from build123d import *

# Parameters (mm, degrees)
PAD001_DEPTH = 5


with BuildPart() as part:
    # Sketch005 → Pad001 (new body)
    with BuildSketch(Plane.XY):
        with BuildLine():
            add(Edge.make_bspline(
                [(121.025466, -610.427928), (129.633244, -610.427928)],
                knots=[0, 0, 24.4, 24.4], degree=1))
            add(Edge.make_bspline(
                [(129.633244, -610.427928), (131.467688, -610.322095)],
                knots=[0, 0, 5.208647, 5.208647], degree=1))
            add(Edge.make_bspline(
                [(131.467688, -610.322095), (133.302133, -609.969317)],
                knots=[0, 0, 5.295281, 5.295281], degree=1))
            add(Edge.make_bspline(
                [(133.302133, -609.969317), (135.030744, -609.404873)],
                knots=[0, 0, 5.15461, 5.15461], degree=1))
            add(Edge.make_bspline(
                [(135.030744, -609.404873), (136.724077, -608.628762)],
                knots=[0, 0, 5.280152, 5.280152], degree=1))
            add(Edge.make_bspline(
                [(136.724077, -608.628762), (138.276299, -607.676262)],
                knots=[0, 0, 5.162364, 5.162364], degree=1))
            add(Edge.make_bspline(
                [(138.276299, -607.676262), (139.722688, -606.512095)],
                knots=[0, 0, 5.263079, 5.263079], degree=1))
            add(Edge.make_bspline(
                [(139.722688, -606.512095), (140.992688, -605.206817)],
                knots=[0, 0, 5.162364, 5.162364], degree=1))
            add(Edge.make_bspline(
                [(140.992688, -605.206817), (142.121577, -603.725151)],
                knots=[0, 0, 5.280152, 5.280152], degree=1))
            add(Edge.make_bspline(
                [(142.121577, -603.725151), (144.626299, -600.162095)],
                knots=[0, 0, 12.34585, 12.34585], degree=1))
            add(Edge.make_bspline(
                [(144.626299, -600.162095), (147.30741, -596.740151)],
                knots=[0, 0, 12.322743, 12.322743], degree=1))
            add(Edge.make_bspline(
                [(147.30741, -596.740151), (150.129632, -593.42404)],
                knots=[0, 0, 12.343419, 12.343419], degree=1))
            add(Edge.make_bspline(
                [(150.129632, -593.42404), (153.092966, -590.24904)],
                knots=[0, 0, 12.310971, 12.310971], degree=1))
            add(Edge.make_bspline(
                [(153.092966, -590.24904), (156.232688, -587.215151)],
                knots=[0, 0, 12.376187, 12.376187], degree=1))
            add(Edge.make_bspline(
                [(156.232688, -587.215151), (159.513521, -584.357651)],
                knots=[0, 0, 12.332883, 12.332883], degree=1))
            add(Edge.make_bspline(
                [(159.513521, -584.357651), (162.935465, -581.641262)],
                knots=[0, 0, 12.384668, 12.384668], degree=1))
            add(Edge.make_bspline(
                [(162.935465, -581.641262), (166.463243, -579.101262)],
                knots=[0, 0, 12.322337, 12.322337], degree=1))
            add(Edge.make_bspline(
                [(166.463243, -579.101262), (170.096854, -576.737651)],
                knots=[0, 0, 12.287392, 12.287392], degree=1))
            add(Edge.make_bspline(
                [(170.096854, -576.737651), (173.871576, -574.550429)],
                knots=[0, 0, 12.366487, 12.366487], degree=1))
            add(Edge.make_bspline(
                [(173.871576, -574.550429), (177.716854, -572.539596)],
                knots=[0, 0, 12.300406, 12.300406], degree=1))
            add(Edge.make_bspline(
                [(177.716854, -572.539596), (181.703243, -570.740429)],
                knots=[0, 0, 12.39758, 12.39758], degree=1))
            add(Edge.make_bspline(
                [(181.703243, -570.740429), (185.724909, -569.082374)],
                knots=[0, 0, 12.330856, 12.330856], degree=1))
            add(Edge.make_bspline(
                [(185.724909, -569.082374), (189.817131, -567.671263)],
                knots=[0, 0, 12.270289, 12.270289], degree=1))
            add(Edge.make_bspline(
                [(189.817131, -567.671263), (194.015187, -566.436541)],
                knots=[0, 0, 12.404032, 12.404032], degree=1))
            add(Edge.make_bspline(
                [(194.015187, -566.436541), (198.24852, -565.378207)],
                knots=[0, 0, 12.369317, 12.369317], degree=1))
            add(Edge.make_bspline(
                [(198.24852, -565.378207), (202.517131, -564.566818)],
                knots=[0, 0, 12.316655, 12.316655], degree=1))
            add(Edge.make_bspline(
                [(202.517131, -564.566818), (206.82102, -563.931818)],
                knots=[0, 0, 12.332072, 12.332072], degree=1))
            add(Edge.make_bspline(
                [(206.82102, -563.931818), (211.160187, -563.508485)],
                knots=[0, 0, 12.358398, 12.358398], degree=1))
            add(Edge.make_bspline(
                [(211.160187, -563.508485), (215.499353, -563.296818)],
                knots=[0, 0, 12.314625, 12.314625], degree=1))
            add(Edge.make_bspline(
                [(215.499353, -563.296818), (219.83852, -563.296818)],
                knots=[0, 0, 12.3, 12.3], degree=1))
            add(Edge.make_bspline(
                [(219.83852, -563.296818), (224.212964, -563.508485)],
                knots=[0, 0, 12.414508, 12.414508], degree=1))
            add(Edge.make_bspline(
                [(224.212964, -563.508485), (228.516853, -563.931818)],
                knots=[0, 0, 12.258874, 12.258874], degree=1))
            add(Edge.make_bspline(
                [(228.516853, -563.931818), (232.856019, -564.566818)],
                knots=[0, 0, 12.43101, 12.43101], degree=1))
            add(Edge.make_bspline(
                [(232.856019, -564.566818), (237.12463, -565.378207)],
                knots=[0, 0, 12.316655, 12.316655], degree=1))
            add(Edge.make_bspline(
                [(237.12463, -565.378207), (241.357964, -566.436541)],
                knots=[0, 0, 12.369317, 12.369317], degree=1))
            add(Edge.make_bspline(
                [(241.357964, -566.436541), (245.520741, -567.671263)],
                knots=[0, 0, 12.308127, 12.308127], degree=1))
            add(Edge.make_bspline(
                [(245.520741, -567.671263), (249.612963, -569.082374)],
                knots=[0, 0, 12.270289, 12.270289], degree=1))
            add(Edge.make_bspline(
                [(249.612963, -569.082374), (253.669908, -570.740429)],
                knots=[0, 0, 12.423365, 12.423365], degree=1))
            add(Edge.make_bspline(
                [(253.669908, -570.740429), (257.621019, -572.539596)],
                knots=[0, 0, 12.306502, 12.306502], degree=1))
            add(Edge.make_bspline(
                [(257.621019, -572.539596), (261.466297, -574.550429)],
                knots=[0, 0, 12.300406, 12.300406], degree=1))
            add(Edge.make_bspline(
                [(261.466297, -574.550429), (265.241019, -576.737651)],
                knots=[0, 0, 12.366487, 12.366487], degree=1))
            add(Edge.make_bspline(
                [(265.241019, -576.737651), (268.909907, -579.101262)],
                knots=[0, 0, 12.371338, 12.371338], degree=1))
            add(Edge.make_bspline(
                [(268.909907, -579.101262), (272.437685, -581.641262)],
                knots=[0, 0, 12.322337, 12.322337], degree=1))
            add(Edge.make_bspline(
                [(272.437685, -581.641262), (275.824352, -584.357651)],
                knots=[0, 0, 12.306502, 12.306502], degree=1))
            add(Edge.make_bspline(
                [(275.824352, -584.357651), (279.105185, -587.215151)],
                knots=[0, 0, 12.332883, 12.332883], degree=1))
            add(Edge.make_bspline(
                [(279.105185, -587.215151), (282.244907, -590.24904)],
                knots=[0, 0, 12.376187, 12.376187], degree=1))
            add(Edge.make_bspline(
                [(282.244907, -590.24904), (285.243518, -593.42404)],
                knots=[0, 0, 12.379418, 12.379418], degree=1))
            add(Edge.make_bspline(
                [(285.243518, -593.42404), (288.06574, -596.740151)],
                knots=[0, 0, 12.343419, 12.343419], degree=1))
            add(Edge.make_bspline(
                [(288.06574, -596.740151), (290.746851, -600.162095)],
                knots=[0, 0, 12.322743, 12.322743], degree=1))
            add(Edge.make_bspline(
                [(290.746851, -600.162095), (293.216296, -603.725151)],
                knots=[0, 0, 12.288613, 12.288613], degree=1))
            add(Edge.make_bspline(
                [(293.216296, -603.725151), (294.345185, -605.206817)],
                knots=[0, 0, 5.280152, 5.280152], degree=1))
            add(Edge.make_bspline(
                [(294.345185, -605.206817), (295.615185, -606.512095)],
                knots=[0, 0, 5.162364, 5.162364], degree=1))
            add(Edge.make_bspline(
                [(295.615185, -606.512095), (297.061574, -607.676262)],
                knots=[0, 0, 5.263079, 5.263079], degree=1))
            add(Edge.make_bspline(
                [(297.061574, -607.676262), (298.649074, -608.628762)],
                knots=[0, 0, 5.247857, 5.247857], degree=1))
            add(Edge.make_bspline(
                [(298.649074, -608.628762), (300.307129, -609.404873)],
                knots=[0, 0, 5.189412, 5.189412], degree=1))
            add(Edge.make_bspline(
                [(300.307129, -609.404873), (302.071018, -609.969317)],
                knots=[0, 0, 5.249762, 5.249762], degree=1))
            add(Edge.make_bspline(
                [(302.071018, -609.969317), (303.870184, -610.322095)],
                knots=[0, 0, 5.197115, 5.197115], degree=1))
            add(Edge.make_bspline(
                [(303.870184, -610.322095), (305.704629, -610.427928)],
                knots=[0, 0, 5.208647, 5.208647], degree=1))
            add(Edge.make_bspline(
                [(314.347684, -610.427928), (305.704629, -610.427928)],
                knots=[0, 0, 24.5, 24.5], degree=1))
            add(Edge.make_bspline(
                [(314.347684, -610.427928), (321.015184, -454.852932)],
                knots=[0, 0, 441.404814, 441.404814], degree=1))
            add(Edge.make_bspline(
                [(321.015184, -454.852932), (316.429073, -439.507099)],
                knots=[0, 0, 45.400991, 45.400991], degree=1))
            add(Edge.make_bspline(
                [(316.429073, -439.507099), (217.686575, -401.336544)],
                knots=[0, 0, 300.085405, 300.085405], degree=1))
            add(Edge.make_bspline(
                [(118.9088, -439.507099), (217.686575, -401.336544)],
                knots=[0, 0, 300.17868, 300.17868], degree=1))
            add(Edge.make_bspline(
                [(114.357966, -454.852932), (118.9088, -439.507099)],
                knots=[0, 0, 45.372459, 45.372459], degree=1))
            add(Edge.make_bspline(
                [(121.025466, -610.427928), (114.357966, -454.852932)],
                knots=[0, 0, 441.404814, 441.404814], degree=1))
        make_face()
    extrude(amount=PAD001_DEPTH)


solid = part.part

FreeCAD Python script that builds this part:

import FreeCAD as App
import Part
import Sketcher

doc = App.newDocument("Part")
body = doc.addObject("PartDesign::Body", "Body")

sketch1 = body.newObject("Sketcher::SketchObject", "Sketch")
sketch1.AttachmentSupport = (doc.getObject("XY_Plane"), [""])
sketch1.MapMode = "FlatFace"
sketch1.addGeometry([
    Part.BSplineCurve([App.Vector(121.025466, -610.427928, 0), App.Vector(129.633244, -610.427928, 0)], [2, 2], [0, 24.4], False, 1, [1, 1], False),
    Part.BSplineCurve([App.Vector(129.633244, -610.427928, 0), App.Vector(131.467688, -610.322095, 0)], [2, 2], [0, 5.208647], False, 1, [1, 1], False),
    Part.BSplineCurve([App.Vector(131.467688, -610.322095, 0), App.Vector(133.302133, -609.969317, 0)], [2, 2], [0, 5.295281], False, 1, [1, 1], False),
    Part.BSplineCurve([App.Vector(133.302133, -609.969317, 0), App.Vector(135.030744, -609.404873, 0)], [2, 2], [0, 5.15461], False, 1, [1, 1], False),
    Part.BSplineCurve([App.Vector(135.030744, -609.404873, 0), App.Vector(136.724077, -608.628762, 0)], [2, 2], [0, 5.280152], False, 1, [1, 1], False),
    Part.BSplineCurve([App.Vector(136.724077, -608.628762, 0), App.Vector(138.276299, -607.676262, 0)], [2, 2], [0, 5.162364], False, 1, [1, 1], False),
    Part.BSplineCurve([App.Vector(138.276299, -607.676262, 0), App.Vector(139.722688, -606.512095, 0)], [2, 2], [0, 5.263079], False, 1, [1, 1], False),
    Part.BSplineCurve([App.Vector(139.722688, -606.512095, 0), App.Vector(140.992688, -605.206817, 0)], [2, 2], [0, 5.162364], False, 1, [1, 1], False),
    Part.BSplineCurve([App.Vector(140.992688, -605.206817, 0), App.Vector(142.121577, -603.725151, 0)], [2, 2], [0, 5.280152], False, 1, [1, 1], False),
    Part.BSplineCurve([App.Vector(142.121577, -603.725151, 0), App.Vector(144.626299, -600.162095, 0)], [2, 2], [0, 12.34585], False, 1, [1, 1], False),
    Part.BSplineCurve([App.Vector(144.626299, -600.162095, 0), App.Vector(147.30741, -596.740151, 0)], [2, 2], [0, 12.322743], False, 1, [1, 1], False),
    Part.BSplineCurve([App.Vector(147.30741, -596.740151, 0), App.Vector(150.129632, -593.42404, 0)], [2, 2], [0, 12.343419], False, 1, [1, 1], False),
    Part.BSplineCurve([App.Vector(150.129632, -593.42404, 0), App.Vector(153.092966, -590.24904, 0)], [2, 2], [0, 12.310971], False, 1, [1, 1], False),
    Part.BSplineCurve([App.Vector(153.092966, -590.24904, 0), App.Vector(156.232688, -587.215151, 0)], [2, 2], [0, 12.376187], False, 1, [1, 1], False),
    Part.BSplineCurve([App.Vector(156.232688, -587.215151, 0), App.Vector(159.513521, -584.357651, 0)], [2, 2], [0, 12.332883], False, 1, [1, 1], False),
    Part.BSplineCurve([App.Vector(159.513521, -584.357651, 0), App.Vector(162.935465, -581.641262, 0)], [2, 2], [0, 12.384668], False, 1, [1, 1], False),
    Part.BSplineCurve([App.Vector(162.935465, -581.641262, 0), App.Vector(166.463243, -579.101262, 0)], [2, 2], [0, 12.322337], False, 1, [1, 1], False),
    Part.BSplineCurve([App.Vector(166.463243, -579.101262, 0), App.Vector(170.096854, -576.737651, 0)], [2, 2], [0, 12.287392], False, 1, [1, 1], False),
    Part.BSplineCurve([App.Vector(170.096854, -576.737651, 0), App.Vector(173.871576, -574.550429, 0)], [2, 2], [0, 12.366487], False, 1, [1, 1], False),
    Part.BSplineCurve([App.Vector(173.871576, -574.550429, 0), App.Vector(177.716854, -572.539596, 0)], [2, 2], [0, 12.300406], False, 1, [1, 1], False),
    Part.BSplineCurve([App.Vector(177.716854, -572.539596, 0), App.Vector(181.703243, -570.740429, 0)], [2, 2], [0, 12.39758], False, 1, [1, 1], False),
    Part.BSplineCurve([App.Vector(181.703243, -570.740429, 0), App.Vector(185.724909, -569.082374, 0)], [2, 2], [0, 12.330856], False, 1, [1, 1], False),
    Part.BSplineCurve([App.Vector(185.724909, -569.082374, 0), App.Vector(189.817131, -567.671263, 0)], [2, 2], [0, 12.270289], False, 1, [1, 1], False),
    Part.BSplineCurve([App.Vector(189.817131, -567.671263, 0), App.Vector(194.015187, -566.436541, 0)], [2, 2], [0, 12.404032], False, 1, [1, 1], False),
    Part.BSplineCurve([App.Vector(194.015187, -566.436541, 0), App.Vector(198.24852, -565.378207, 0)], [2, 2], [0, 12.369317], False, 1, [1, 1], False),
    Part.BSplineCurve([App.Vector(198.24852, -565.378207, 0), App.Vector(202.517131, -564.566818, 0)], [2, 2], [0, 12.316655], False, 1, [1, 1], False),
    Part.BSplineCurve([App.Vector(202.517131, -564.566818, 0), App.Vector(206.82102, -563.931818, 0)], [2, 2], [0, 12.332072], False, 1, [1, 1], False),
    Part.BSplineCurve([App.Vector(206.82102, -563.931818, 0), App.Vector(211.160187, -563.508485, 0)], [2, 2], [0, 12.358398], False, 1, [1, 1], False),
    Part.BSplineCurve([App.Vector(211.160187, -563.508485, 0), App.Vector(215.499353, -563.296818, 0)], [2, 2], [0, 12.314625], False, 1, [1, 1], False),
    Part.BSplineCurve([App.Vector(215.499353, -563.296818, 0), App.Vector(219.83852, -563.296818, 0)], [2, 2], [0, 12.3], False, 1, [1, 1], False),
    Part.BSplineCurve([App.Vector(219.83852, -563.296818, 0), App.Vector(224.212964, -563.508485, 0)], [2, 2], [0, 12.414508], False, 1, [1, 1], False),
    Part.BSplineCurve([App.Vector(224.212964, -563.508485, 0), App.Vector(228.516853, -563.931818, 0)], [2, 2], [0, 12.258874], False, 1, [1, 1], False),
    Part.BSplineCurve([App.Vector(228.516853, -563.931818, 0), App.Vector(232.856019, -564.566818, 0)], [2, 2], [0, 12.43101], False, 1, [1, 1], False),
    Part.BSplineCurve([App.Vector(232.856019, -564.566818, 0), App.Vector(237.12463, -565.378207, 0)], [2, 2], [0, 12.316655], False, 1, [1, 1], False),
    Part.BSplineCurve([App.Vector(237.12463, -565.378207, 0), App.Vector(241.357964, -566.436541, 0)], [2, 2], [0, 12.369317], False, 1, [1, 1], False),
    Part.BSplineCurve([App.Vector(241.357964, -566.436541, 0), App.Vector(245.520741, -567.671263, 0)], [2, 2], [0, 12.308127], False, 1, [1, 1], False),
    Part.BSplineCurve([App.Vector(245.520741, -567.671263, 0), App.Vector(249.612963, -569.082374, 0)], [2, 2], [0, 12.270289], False, 1, [1, 1], False),
    Part.BSplineCurve([App.Vector(249.612963, -569.082374, 0), App.Vector(253.669908, -570.740429, 0)], [2, 2], [0, 12.423365], False, 1, [1, 1], False),
    Part.BSplineCurve([App.Vector(253.669908, -570.740429, 0), App.Vector(257.621019, -572.539596, 0)], [2, 2], [0, 12.306502], False, 1, [1, 1], False),
    Part.BSplineCurve([App.Vector(257.621019, -572.539596, 0), App.Vector(261.466297, -574.550429, 0)], [2, 2], [0, 12.300406], False, 1, [1, 1], False),
    Part.BSplineCurve([App.Vector(261.466297, -574.550429, 0), App.Vector(265.241019, -576.737651, 0)], [2, 2], [0, 12.366487], False, 1, [1, 1], False),
    Part.BSplineCurve([App.Vector(265.241019, -576.737651, 0), App.Vector(268.909907, -579.101262, 0)], [2, 2], [0, 12.371338], False, 1, [1, 1], False),
    Part.BSplineCurve([App.Vector(268.909907, -579.101262, 0), App.Vector(272.437685, -581.641262, 0)], [2, 2], [0, 12.322337], False, 1, [1, 1], False),
    Part.BSplineCurve([App.Vector(272.437685, -581.641262, 0), App.Vector(275.824352, -584.357651, 0)], [2, 2], [0, 12.306502], False, 1, [1, 1], False),
    Part.BSplineCurve([App.Vector(275.824352, -584.357651, 0), App.Vector(279.105185, -587.215151, 0)], [2, 2], [0, 12.332883], False, 1, [1, 1], False),
    Part.BSplineCurve([App.Vector(279.105185, -587.215151, 0), App.Vector(282.244907, -590.24904, 0)], [2, 2], [0, 12.376187], False, 1, [1, 1], False),
    Part.BSplineCurve([App.Vector(282.244907, -590.24904, 0), App.Vector(285.243518, -593.42404, 0)], [2, 2], [0, 12.379418], False, 1, [1, 1], False),
    Part.BSplineCurve([App.Vector(285.243518, -593.42404, 0), App.Vector(288.06574, -596.740151, 0)], [2, 2], [0, 12.343419], False, 1, [1, 1], False),
    Part.BSplineCurve([App.Vector(288.06574, -596.740151, 0), App.Vector(290.746851, -600.162095, 0)], [2, 2], [0, 12.322743], False, 1, [1, 1], False),
    Part.BSplineCurve([App.Vector(290.746851, -600.162095, 0), App.Vector(293.216296, -603.725151, 0)], [2, 2], [0, 12.288613], False, 1, [1, 1], False),
    Part.BSplineCurve([App.Vector(293.216296, -603.725151, 0), App.Vector(294.345185, -605.206817, 0)], [2, 2], [0, 5.280152], False, 1, [1, 1], False),
    Part.BSplineCurve([App.Vector(294.345185, -605.206817, 0), App.Vector(295.615185, -606.512095, 0)], [2, 2], [0, 5.162364], False, 1, [1, 1], False),
    Part.BSplineCurve([App.Vector(295.615185, -606.512095, 0), App.Vector(297.061574, -607.676262, 0)], [2, 2], [0, 5.263079], False, 1, [1, 1], False),
    Part.BSplineCurve([App.Vector(297.061574, -607.676262, 0), App.Vector(298.649074, -608.628762, 0)], [2, 2], [0, 5.247857], False, 1, [1, 1], False),
    Part.BSplineCurve([App.Vector(298.649074, -608.628762, 0), App.Vector(300.307129, -609.404873, 0)], [2, 2], [0, 5.189412], False, 1, [1, 1], False),
    Part.BSplineCurve([App.Vector(300.307129, -609.404873, 0), App.Vector(302.071018, -609.969317, 0)], [2, 2], [0, 5.249762], False, 1, [1, 1], False),
    Part.BSplineCurve([App.Vector(302.071018, -609.969317, 0), App.Vector(303.870184, -610.322095, 0)], [2, 2], [0, 5.197115], False, 1, [1, 1], False),
    Part.BSplineCurve([App.Vector(303.870184, -610.322095, 0), App.Vector(305.704629, -610.427928, 0)], [2, 2], [0, 5.208647], False, 1, [1, 1], False),
    Part.BSplineCurve([App.Vector(314.347684, -610.427928, 0), App.Vector(305.704629, -610.427928, 0)], [2, 2], [0, 24.5], False, 1, [1, 1], False),
    Part.BSplineCurve([App.Vector(314.347684, -610.427928, 0), App.Vector(321.015184, -454.852932, 0)], [2, 2], [0, 441.404814], False, 1, [1, 1], False),
    Part.BSplineCurve([App.Vector(321.015184, -454.852932, 0), App.Vector(316.429073, -439.507099, 0)], [2, 2], [0, 45.400991], False, 1, [1, 1], False),
    Part.BSplineCurve([App.Vector(316.429073, -439.507099, 0), App.Vector(217.686575, -401.336544, 0)], [2, 2], [0, 300.085405], False, 1, [1, 1], False),
    Part.BSplineCurve([App.Vector(118.9088, -439.507099, 0), App.Vector(217.686575, -401.336544, 0)], [2, 2], [0, 300.17868], False, 1, [1, 1], False),
    Part.BSplineCurve([App.Vector(114.357966, -454.852932, 0), App.Vector(118.9088, -439.507099, 0)], [2, 2], [0, 45.372459], False, 1, [1, 1], False),
    Part.BSplineCurve([App.Vector(121.025466, -610.427928, 0), App.Vector(114.357966, -454.852932, 0)], [2, 2], [0, 441.404814], False, 1, [1, 1], False),
], False)
sketch1.addConstraint([
    Sketcher.Constraint("Block", 0),
    Sketcher.Constraint("Block", 1),
    Sketcher.Constraint("Block", 2),
    Sketcher.Constraint("Block", 3),
    Sketcher.Constraint("Block", 4),
    Sketcher.Constraint("Block", 5),
    Sketcher.Constraint("Block", 6),
    Sketcher.Constraint("Block", 7),
    Sketcher.Constraint("Block", 8),
    Sketcher.Constraint("Block", 9),
    Sketcher.Constraint("Block", 10),
    Sketcher.Constraint("Block", 11),
    Sketcher.Constraint("Block", 12),
    Sketcher.Constraint("Block", 13),
    Sketcher.Constraint("Block", 14),
    Sketcher.Constraint("Block", 15),
    Sketcher.Constraint("Block", 16),
    Sketcher.Constraint("Block", 17),
    Sketcher.Constraint("Block", 18),
    Sketcher.Constraint("Block", 19),
    Sketcher.Constraint("Block", 20),
    Sketcher.Constraint("Block", 21),
    Sketcher.Constraint("Block", 22),
    Sketcher.Constraint("Block", 23),
    Sketcher.Constraint("Block", 24),
    Sketcher.Constraint("Block", 25),
    Sketcher.Constraint("Block", 26),
    Sketcher.Constraint("Block", 27),
    Sketcher.Constraint("Block", 28),
    Sketcher.Constraint("Block", 29),
    Sketcher.Constraint("Block", 30),
    Sketcher.Constraint("Block", 31),
    Sketcher.Constraint("Block", 32),
    Sketcher.Constraint("Block", 33),
    Sketcher.Constraint("Block", 34),
    Sketcher.Constraint("Block", 35),
    Sketcher.Constraint("Block", 36),
    Sketcher.Constraint("Block", 37),
    Sketcher.Constraint("Block", 38),
    Sketcher.Constraint("Block", 39),
    Sketcher.Constraint("Block", 40),
    Sketcher.Constraint("Block", 41),
    Sketcher.Constraint("Block", 42),
    Sketcher.Constraint("Block", 43),
    Sketcher.Constraint("Block", 44),
    Sketcher.Constraint("Block", 45),
    Sketcher.Constraint("Block", 46),
    Sketcher.Constraint("Block", 47),
    Sketcher.Constraint("Block", 48),
    Sketcher.Constraint("Block", 49),
    Sketcher.Constraint("Block", 50),
    Sketcher.Constraint("Block", 51),
    Sketcher.Constraint("Block", 52),
    Sketcher.Constraint("Block", 53),
    Sketcher.Constraint("Block", 54),
    Sketcher.Constraint("Block", 55),
    Sketcher.Constraint("Block", 56),
    Sketcher.Constraint("Block", 57),
    Sketcher.Constraint("Block", 58),
    Sketcher.Constraint("Block", 59),
    Sketcher.Constraint("Block", 60),
    Sketcher.Constraint("Block", 61),
    Sketcher.Constraint("Block", 62),
    Sketcher.Constraint("Block", 63),
    Sketcher.Constraint("Block", 64),
])
pad1 = body.newObject("PartDesign::Pad", "Pad")
pad1.Profile = sketch1
pad1.Length = 5

doc.recompute()
